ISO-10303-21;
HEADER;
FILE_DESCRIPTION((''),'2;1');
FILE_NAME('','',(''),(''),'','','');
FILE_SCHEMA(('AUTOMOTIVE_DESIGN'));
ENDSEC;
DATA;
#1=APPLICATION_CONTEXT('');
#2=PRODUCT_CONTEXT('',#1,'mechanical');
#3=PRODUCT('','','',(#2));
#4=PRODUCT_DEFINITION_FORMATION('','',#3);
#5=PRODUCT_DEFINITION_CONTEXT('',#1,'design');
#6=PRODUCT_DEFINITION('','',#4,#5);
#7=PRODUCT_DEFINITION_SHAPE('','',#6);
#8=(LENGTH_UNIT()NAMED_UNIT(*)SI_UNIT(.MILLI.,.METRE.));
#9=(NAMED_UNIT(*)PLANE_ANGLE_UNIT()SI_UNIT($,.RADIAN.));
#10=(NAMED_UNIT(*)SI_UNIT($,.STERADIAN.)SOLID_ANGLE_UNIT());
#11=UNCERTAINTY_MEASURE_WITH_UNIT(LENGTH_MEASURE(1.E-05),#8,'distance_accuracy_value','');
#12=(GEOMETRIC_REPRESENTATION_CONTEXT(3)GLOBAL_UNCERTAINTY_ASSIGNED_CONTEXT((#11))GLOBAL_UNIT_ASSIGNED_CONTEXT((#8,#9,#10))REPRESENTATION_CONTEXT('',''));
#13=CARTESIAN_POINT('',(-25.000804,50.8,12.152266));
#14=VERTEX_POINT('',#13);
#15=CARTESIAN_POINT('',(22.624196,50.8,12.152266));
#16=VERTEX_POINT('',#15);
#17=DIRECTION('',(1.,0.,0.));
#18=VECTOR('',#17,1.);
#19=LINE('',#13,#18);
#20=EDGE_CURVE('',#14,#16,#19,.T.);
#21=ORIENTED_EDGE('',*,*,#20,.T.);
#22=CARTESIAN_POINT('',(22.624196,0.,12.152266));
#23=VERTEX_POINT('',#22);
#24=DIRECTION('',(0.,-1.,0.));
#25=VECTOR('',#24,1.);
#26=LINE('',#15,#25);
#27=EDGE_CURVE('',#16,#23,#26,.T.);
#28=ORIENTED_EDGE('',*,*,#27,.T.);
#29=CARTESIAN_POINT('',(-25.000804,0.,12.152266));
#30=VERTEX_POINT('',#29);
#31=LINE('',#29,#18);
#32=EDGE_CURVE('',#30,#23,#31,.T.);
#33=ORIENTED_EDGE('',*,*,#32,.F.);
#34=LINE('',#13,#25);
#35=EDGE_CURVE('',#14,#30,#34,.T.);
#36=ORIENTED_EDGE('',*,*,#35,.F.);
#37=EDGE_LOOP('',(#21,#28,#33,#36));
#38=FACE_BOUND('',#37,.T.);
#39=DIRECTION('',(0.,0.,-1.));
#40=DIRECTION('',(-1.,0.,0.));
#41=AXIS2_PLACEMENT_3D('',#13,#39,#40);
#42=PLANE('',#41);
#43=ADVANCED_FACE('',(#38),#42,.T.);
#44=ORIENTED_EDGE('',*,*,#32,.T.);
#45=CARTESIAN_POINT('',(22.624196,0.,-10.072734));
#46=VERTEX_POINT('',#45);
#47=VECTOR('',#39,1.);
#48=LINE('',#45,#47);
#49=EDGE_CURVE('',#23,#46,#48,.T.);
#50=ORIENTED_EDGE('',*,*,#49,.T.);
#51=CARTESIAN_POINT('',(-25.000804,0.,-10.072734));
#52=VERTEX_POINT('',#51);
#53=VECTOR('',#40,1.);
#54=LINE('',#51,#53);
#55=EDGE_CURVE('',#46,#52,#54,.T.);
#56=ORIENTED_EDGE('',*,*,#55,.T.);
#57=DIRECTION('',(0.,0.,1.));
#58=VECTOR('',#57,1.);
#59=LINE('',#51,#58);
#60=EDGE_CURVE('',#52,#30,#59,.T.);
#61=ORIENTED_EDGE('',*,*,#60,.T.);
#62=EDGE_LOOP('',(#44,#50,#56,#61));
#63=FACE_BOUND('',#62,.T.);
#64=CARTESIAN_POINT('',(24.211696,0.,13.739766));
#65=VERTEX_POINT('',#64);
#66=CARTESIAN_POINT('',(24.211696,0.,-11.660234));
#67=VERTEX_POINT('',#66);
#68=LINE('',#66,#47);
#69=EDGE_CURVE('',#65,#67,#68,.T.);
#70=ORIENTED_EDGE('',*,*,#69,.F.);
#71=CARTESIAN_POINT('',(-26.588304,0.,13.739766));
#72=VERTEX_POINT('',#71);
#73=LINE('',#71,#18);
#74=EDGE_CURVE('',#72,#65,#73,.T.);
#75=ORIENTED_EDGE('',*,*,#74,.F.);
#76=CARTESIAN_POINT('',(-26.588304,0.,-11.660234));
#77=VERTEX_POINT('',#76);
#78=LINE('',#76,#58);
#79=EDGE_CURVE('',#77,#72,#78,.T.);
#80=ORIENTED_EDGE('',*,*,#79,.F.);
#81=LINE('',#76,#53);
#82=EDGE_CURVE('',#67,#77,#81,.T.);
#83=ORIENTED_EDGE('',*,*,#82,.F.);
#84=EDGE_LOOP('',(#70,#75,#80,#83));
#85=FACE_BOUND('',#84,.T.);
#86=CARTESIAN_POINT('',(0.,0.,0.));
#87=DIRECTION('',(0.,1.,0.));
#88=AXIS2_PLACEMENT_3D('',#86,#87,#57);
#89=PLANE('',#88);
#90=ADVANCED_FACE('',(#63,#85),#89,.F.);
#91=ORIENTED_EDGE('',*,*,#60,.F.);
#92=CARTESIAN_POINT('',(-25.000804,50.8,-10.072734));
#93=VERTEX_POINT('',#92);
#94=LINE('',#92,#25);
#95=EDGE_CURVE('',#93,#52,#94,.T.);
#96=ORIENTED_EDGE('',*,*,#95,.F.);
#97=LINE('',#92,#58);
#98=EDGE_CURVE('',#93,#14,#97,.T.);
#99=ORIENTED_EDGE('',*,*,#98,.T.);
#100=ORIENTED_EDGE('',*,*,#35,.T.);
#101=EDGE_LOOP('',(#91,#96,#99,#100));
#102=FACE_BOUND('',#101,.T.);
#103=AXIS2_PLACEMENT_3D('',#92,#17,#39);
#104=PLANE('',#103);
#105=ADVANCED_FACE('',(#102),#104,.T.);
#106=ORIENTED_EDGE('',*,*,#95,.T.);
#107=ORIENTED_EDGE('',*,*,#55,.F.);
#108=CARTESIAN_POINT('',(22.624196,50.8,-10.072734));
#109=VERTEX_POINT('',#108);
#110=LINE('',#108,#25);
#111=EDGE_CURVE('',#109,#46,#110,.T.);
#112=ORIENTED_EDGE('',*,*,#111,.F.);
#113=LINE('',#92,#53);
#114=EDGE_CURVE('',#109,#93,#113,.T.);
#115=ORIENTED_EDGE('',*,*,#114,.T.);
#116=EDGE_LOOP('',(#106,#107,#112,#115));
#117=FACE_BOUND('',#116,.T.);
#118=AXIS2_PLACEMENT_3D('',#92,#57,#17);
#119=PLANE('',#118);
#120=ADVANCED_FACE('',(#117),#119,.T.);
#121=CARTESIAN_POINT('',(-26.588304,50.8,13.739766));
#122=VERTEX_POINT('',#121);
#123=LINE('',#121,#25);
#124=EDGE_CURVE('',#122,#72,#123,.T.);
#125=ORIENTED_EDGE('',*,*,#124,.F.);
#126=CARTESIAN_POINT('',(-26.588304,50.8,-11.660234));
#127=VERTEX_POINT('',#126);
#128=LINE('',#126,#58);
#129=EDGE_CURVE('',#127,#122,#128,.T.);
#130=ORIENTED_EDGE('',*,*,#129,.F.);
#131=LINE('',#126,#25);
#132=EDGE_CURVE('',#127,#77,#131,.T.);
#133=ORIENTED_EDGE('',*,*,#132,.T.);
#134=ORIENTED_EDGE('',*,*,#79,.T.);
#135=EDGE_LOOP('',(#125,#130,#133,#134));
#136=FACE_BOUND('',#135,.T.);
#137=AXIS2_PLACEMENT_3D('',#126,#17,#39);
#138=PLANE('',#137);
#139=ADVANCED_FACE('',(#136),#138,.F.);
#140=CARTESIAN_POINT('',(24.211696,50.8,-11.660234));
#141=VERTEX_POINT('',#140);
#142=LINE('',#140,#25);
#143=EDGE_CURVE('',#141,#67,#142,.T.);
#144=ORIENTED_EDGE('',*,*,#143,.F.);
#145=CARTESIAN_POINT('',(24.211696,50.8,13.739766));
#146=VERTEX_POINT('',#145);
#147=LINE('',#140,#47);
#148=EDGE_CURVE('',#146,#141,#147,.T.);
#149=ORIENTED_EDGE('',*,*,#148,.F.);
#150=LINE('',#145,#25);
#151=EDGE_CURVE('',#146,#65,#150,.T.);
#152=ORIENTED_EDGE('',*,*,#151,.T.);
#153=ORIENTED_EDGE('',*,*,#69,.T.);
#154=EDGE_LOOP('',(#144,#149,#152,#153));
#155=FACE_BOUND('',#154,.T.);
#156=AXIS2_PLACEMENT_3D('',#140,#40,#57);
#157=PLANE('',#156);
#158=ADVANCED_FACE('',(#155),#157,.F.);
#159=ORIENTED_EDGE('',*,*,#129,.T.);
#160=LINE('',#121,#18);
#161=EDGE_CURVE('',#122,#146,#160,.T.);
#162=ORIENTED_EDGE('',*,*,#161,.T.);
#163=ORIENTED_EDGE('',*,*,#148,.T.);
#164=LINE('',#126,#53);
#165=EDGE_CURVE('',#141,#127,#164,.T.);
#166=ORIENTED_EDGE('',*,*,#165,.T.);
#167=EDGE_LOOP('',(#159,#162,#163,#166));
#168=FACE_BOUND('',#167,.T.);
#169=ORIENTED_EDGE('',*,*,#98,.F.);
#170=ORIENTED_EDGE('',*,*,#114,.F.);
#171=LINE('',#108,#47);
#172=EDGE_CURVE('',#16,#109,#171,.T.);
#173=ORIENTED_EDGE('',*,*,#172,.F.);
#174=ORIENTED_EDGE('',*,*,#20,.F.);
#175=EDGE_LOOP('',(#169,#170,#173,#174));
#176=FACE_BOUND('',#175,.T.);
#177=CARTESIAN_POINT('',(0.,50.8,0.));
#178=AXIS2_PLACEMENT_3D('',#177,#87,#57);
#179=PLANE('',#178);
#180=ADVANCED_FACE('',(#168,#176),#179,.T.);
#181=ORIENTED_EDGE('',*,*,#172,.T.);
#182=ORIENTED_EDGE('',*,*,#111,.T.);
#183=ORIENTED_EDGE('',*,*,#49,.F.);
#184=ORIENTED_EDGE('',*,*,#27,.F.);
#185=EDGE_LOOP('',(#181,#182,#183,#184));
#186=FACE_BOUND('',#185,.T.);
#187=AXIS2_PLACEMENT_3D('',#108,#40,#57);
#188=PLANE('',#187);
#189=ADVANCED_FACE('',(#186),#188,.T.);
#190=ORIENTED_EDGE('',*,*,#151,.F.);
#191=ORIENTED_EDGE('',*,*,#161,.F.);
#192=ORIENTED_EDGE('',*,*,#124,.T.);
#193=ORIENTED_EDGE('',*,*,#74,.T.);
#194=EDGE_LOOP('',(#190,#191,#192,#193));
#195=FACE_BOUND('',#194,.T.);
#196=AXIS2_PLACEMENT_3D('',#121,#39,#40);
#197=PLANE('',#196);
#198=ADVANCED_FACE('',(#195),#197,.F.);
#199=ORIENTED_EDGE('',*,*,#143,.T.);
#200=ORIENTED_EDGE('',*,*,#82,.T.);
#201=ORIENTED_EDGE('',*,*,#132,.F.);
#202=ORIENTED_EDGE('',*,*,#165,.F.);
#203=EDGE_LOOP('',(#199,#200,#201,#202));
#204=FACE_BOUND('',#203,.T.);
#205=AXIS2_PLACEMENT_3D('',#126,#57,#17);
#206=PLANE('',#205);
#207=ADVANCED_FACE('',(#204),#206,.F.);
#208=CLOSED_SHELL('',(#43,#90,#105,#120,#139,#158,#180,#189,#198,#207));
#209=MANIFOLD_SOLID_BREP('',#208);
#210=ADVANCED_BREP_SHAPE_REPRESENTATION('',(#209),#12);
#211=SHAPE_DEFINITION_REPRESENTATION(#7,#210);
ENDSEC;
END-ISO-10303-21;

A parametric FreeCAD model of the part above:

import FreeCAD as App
import Part
import Sketcher
Q = App.Units.Quantity


def add_polygon(sketch, points):
    """Adds a closed chain of lines whose ends are joined by coincident constraints."""
    first, n = sketch.GeometryCount, len(points)
    for a, b in zip(points, points[1:] + points[:1]):
        sketch.addGeometry(Part.LineSegment(App.Vector(*a, 0), App.Vector(*b, 0)), False)
    for i in range(n):
        sketch.addConstraint(Sketcher.Constraint("Coincident", first + i, 2, first + (i + 1) % n, 1))

doc = App.newDocument("Part")
body = doc.addObject("PartDesign::Body", "Body")

sketch1 = body.newObject("Sketcher::SketchObject", "Sketch")
sketch1.AttachmentSupport = (doc.getObject("XZ_Plane"), [""])
sketch1.MapMode = "FlatFace"
add_polygon(sketch1, [(-27, -12), (-27, 14), (24, 14), (24, -12)])
add_polygon(sketch1, [(23, 12), (-25, 12), (-25, -10), (23, -10)])
sketch1.addConstraint([
    Sketcher.Constraint("Vertical", 0),
    Sketcher.Constraint("Horizontal", 1),
    Sketcher.Constraint("Vertical", 2),
    Sketcher.Constraint("Horizontal", 3),
    Sketcher.Constraint("Horizontal", 4),
    Sketcher.Constraint("Vertical", 5),
    Sketcher.Constraint("Horizontal", 6),
    Sketcher.Constraint("Vertical", 7),
    Sketcher.Constraint("DistanceX", 1, 1, 1, 2, Q("2 in")),
    Sketcher.Constraint("DistanceY", 0, 1, 0, 2, Q("1 in")),
    Sketcher.Constraint("DistanceX", 4, 2, 4, 1, Q("1.875 in")),
    Sketcher.Constraint("DistanceY", 5, 2, 5, 1, Q("0.875 in")),
    Sketcher.Constraint("DistanceX", 0, 2, 4, 2, Q("0.0625 in")),
    Sketcher.Constraint("DistanceY", 4, 2, 0, 2, Q("0.0625 in")),
    Sketcher.Constraint("DistanceX", 0, 2, -1, 1, Q("26.588304 mm")),
    Sketcher.Constraint("DistanceY", -1, 1, 0, 2, Q("13.739766 mm")),
])
pad1 = body.newObject("PartDesign::Pad", "Pad")
pad1.Profile = sketch1
pad1.Length = Q("2 in")
pad1.Reversed = True

doc.recompute()
